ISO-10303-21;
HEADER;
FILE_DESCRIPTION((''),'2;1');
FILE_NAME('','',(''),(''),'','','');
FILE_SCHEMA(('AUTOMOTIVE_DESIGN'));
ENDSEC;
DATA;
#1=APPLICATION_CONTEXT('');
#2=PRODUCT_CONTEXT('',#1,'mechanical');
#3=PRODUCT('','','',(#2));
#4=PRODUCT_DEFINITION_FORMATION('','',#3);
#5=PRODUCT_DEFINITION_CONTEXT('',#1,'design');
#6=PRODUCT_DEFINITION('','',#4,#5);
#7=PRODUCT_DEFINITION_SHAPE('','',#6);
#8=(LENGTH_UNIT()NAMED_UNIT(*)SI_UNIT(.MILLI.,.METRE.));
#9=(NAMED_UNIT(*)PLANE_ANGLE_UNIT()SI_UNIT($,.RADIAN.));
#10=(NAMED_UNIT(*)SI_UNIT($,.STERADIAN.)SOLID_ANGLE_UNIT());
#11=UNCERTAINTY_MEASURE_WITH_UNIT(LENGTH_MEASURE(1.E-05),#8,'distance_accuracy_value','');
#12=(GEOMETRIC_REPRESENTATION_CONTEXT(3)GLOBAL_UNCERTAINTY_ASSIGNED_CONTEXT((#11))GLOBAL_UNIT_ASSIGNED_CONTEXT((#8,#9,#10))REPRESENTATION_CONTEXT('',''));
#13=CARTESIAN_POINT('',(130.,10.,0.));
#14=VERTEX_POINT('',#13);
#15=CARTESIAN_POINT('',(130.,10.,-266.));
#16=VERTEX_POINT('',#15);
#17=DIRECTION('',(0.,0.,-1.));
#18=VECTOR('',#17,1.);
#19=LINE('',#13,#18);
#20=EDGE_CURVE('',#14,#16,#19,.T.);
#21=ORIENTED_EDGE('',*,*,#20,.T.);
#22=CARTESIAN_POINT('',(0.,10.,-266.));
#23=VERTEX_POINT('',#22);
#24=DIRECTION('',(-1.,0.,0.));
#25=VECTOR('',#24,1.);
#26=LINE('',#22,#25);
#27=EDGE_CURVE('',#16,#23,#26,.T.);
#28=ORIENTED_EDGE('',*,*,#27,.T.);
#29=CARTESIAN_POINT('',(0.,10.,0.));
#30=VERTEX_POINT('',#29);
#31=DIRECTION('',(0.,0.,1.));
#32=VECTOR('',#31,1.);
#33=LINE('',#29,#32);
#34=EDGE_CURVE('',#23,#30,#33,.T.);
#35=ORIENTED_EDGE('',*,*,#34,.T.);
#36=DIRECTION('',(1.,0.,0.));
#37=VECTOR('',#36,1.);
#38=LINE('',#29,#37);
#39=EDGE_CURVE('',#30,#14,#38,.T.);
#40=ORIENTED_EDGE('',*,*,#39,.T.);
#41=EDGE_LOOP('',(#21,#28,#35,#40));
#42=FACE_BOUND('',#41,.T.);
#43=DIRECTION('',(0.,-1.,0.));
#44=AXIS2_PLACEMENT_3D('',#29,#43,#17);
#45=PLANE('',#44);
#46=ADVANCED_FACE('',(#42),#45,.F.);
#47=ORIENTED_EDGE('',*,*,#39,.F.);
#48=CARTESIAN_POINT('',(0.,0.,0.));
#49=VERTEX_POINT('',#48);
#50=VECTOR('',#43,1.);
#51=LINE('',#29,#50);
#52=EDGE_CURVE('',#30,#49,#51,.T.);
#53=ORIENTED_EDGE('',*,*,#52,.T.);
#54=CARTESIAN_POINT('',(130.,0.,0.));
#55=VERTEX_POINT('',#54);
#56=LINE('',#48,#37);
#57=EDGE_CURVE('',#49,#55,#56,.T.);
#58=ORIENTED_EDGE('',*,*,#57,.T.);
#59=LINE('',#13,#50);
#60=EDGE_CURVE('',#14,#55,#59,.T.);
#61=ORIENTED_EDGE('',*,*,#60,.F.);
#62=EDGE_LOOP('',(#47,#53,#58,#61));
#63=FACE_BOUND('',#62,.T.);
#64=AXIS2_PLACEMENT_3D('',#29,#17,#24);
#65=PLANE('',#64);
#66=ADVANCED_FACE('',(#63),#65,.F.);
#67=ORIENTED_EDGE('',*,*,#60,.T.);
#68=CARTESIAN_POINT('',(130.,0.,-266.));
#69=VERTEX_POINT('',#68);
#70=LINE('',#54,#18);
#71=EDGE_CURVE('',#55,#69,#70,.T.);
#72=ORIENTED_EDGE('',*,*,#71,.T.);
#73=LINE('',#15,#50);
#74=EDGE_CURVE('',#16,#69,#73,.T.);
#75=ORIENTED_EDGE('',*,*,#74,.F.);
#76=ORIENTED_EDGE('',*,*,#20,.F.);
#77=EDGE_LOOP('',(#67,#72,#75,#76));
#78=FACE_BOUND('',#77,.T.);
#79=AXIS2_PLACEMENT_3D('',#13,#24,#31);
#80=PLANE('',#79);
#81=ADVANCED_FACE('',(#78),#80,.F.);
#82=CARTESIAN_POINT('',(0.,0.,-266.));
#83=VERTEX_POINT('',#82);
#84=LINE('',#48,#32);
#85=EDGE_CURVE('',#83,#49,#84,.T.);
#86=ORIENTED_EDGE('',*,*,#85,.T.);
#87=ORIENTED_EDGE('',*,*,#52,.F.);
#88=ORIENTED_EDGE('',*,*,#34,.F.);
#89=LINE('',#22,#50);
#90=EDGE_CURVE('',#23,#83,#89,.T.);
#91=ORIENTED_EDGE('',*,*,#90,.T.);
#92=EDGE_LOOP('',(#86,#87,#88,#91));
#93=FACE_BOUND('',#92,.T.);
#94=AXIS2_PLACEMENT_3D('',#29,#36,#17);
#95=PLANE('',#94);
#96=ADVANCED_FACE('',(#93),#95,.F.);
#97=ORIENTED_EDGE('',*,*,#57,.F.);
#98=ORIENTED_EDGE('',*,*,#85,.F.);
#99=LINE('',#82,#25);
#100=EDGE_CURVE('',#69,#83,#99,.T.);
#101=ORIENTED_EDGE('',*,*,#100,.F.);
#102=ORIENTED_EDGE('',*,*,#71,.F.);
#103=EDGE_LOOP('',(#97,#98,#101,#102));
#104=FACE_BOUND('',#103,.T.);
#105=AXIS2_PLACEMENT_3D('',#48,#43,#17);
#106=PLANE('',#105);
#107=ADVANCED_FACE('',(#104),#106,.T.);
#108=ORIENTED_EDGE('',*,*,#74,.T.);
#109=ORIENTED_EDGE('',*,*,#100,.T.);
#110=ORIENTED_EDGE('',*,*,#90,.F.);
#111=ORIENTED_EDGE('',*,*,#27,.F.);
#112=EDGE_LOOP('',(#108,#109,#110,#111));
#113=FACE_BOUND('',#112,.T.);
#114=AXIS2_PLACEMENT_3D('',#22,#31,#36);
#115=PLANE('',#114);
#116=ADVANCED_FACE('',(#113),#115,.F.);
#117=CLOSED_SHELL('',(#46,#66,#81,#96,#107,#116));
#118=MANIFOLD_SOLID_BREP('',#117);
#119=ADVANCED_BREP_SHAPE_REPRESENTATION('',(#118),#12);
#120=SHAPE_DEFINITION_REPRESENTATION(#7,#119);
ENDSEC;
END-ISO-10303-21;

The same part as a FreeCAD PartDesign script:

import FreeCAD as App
import Part
import Sketcher
Q = App.Units.Quantity

doc = App.newDocument("Part")
body = doc.addObject("PartDesign::Body", "Body")

sketch1 = body.newObject("Sketcher::SketchObject", "Sketch")
sketch1.AttachmentSupport = (doc.getObject("XZ_Plane"), [""])
sketch1.MapMode = "FlatFace"
sketch1.addGeometry([
    Part.LineSegment(App.Vector(0, -266, 0), App.Vector(0, 0, 0)),
    Part.LineSegment(App.Vector(0, 0, 0), App.Vector(130, 0, 0)),
    Part.LineSegment(App.Vector(130, 0, 0), App.Vector(130, -266, 0)),
    Part.LineSegment(App.Vector(130, -266, 0), App.Vector(0, -266, 0)),
], False)
sketch1.addConstraint([
    Sketcher.Constraint("Coincident", 0, 2, 1, 1),
    Sketcher.Constraint("Coincident", 1, 2, 2, 1),
    Sketcher.Constraint("Coincident", 2, 2, 3, 1),
    Sketcher.Constraint("Coincident", 3, 2, 0, 1),
    Sketcher.Constraint("Vertical", 0),
    Sketcher.Constraint("Horizontal", 1),
    Sketcher.Constraint("Vertical", 2),
    Sketcher.Constraint("Horizontal", 3),
    Sketcher.Constraint("Coincident", 0, 2, -1, 1),
    Sketcher.Constraint("DistanceX", 1, 1, 1, 2, Q("130 mm")),
    Sketcher.Constraint("DistanceY", 0, 1, 0, 2, Q("266 mm")),
])
pad1 = body.newObject("PartDesign::Pad", "Pad")
pad1.Profile = sketch1
pad1.Length = 10
pad1.Reversed = True

doc.recompute()
